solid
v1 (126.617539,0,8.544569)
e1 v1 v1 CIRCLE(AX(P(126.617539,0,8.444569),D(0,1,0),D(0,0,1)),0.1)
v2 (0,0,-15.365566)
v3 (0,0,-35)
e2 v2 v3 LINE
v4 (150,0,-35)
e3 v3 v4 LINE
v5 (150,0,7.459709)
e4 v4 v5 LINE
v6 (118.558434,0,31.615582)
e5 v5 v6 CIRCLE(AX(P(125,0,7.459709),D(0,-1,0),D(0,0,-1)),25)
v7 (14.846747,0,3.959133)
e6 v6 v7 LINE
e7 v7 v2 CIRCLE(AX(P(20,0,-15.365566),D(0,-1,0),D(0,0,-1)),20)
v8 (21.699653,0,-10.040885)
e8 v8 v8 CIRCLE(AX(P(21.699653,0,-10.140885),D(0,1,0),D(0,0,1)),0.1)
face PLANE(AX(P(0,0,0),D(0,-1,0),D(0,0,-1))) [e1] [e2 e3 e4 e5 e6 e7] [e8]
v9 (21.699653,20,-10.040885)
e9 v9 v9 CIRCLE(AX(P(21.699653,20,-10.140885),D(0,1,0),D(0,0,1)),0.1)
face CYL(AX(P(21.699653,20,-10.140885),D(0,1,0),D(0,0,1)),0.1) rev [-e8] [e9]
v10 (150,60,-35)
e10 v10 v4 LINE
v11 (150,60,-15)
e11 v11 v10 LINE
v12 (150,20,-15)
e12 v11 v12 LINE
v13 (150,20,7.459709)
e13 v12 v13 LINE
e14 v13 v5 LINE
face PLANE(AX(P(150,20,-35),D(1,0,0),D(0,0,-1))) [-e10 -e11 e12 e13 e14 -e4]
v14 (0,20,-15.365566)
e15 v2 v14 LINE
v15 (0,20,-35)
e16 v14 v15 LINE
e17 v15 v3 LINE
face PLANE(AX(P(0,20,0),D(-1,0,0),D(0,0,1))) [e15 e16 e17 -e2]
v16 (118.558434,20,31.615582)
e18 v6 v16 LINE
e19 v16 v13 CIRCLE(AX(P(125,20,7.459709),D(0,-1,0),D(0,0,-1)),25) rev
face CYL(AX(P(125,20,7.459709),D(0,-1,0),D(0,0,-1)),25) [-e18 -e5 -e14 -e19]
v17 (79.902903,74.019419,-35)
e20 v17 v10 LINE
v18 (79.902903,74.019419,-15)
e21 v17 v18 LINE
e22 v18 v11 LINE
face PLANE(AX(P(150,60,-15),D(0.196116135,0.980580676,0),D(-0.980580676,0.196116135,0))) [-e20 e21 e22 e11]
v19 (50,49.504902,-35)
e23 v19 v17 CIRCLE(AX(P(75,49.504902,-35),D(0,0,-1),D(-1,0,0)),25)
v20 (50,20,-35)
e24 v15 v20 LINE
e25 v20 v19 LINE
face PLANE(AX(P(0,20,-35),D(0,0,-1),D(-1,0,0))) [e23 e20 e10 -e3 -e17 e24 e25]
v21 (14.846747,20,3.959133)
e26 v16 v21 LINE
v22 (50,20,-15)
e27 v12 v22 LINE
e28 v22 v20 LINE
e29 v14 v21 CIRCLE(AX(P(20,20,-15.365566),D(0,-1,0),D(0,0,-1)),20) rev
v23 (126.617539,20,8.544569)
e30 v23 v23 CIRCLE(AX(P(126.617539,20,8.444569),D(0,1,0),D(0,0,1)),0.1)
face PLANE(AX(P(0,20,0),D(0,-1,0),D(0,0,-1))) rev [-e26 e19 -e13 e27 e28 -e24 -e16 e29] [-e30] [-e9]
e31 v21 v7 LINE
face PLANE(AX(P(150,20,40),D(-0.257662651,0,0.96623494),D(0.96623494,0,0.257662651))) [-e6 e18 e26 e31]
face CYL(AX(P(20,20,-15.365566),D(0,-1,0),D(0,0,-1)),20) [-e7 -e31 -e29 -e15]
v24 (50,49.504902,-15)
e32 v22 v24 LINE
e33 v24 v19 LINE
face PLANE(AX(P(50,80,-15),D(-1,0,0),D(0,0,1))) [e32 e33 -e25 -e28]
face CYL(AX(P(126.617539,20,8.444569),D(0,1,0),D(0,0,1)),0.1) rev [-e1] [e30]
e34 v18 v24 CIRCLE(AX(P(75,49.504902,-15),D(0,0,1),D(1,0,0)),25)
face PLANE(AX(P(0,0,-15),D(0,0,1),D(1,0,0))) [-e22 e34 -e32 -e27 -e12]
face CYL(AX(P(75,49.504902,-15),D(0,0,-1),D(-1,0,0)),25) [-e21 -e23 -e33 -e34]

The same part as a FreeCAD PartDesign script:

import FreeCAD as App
import Part
import Sketcher


def edges_at(feature, points):
    """Names of the edges that pass closest to the given points."""
    edges = feature.Shape.Edges
    near = lambda p: min(range(len(edges)), key=lambda i: edges[i].distToShape(Part.Vertex(*p))[0])
    return sorted({f"Edge{near(p) + 1}" for p in points})


def add_polygon(sketch, points):
    """Adds a closed chain of lines whose ends are joined by coincident constraints."""
    first, n = sketch.GeometryCount, len(points)
    for a, b in zip(points, points[1:] + points[:1]):
        sketch.addGeometry(Part.LineSegment(App.Vector(*a, 0), App.Vector(*b, 0)), False)
    for i in range(n):
        sketch.addConstraint(Sketcher.Constraint("Coincident", first + i, 2, first + (i + 1) % n, 1))

doc = App.newDocument("Part")
params = doc.addObject("Spreadsheet::Sheet", "Params")
for row, (alias, value) in enumerate([
    ("sketch1_width", "150 mm"),
    ("sketch1_height", "35 mm"),
    ("sketch1_height2", "75 mm"),
    ("pad1_length", "20 mm"),
    ("sketch2_width", "100 mm"),
    ("sketch2_height", "60 mm"),
    ("sketch2_height2", "80 mm"),
    ("pad2_length", "20 mm"),
    ("fillet_radius", "20 mm"),
    ("fillet2_radius", "25 mm"),
    ("sketch3_diameter", "0.2 mm"),
    ("hole_diameter", "0.2 mm"),
], start=1):
    params.set(f"A{row}", alias)
    params.set(f"B{row}", "=" + value)
    params.setAlias(f"B{row}", alias)

body = doc.addObject("PartDesign::Body", "Body")

sketch1 = doc.addObject("Sketcher::SketchObject", "Sketch")
body.addObject(sketch1)
sketch1.AttachmentSupport = (doc.XZ_Plane, [""])
sketch1.MapMode = "FlatFace"
add_polygon(sketch1, [(0, -35), (0, 0), (150, 40), (150, -35)])
sketch1.addConstraint(Sketcher.Constraint("Vertical", 0))
sketch1.addConstraint(Sketcher.Constraint("Vertical", 2))
sketch1.addConstraint(Sketcher.Constraint("Horizontal", 3))
sketch1.addConstraint(Sketcher.Constraint("Coincident", 0, 2, -1, 1))
sketch1.addConstraint(Sketcher.Constraint("DistanceX", 3, 2, 3, 1, 150.0))
sketch1.addConstraint(Sketcher.Constraint("DistanceY", 0, 1, 0, 2, 35.0))
sketch1.addConstraint(Sketcher.Constraint("DistanceY", 2, 2, 2, 1, 75.0))
sketch1.setExpression("Constraints[8]", "Params.sketch1_width")
sketch1.setExpression("Constraints[9]", "Params.sketch1_height")
sketch1.setExpression("Constraints[10]", "Params.sketch1_height2")
pad1 = doc.addObject("PartDesign::Pad", "Pad")
body.addObject(pad1)
pad1.Profile = sketch1
pad1.setExpression("Length", "Params.pad1_length")
pad1.Reversed = True

sketch2 = doc.addObject("Sketcher::SketchObject", "Sketch001")
body.addObject(sketch2)
sketch2.AttachmentSupport = (doc.XY_Plane, [""])
sketch2.MapMode = "FlatFace"
sketch2.AttachmentOffset = App.Placement(App.Vector(0, 0, -35), App.Rotation())
add_polygon(sketch2, [(150, 60), (150, 0), (50, 0), (50, 80)])
sketch2.addConstraint(Sketcher.Constraint("Vertical", 0))
sketch2.addConstraint(Sketcher.Constraint("Horizontal", 1))
sketch2.addConstraint(Sketcher.Constraint("Vertical", 2))
sketch2.addConstraint(Sketcher.Constraint("PointOnObject", 0, 2, -1))
sketch2.addConstraint(Sketcher.Constraint("DistanceX", 1, 2, 1, 1, 100.0))
sketch2.addConstraint(Sketcher.Constraint("DistanceY", 0, 2, 0, 1, 60.0))
sketch2.addConstraint(Sketcher.Constraint("DistanceY", 2, 1, 2, 2, 80.0))
sketch2.addConstraint(Sketcher.Constraint("DistanceX", -1, 1, 0, 2, 150.0))
sketch2.setExpression("Constraints[8]", "Params.sketch2_width")
sketch2.setExpression("Constraints[9]", "Params.sketch2_height")
sketch2.setExpression("Constraints[10]", "Params.sketch2_height2")
pad2 = doc.addObject("PartDesign::Pad", "Pad001")
body.addObject(pad2)
pad2.Profile = sketch2
pad2.setExpression("Length", "Params.pad2_length")
doc.recompute()

fillet = doc.addObject("PartDesign::Fillet", "Fillet")
body.addObject(fillet)
fillet.Base = (pad2, edges_at(pad2, [(0, 10, 0)]))
fillet.setExpression("Radius", "Params.fillet_radius")
doc.recompute()

fillet2 = doc.addObject("PartDesign::Fillet", "Fillet001")
body.addObject(fillet2)
fillet2.Base = (fillet, edges_at(fillet, [(50, 80, -25), (150, 10, 40)]))
fillet2.setExpression("Radius", "Params.fillet2_radius")

sketch3 = doc.addObject("Sketcher::SketchObject", "Sketch002")
body.addObject(sketch3)
sketch3.AttachmentSupport = (doc.XZ_Plane, [""])
sketch3.MapMode = "FlatFace"
sketch3.AttachmentOffset = App.Placement(App.Vector(0, 0, -20), App.Rotation())
sketch3.addGeometry(Part.Circle(App.Vector(21.699653, -10.140885, 0), App.Vector(0, 0, 1), 0.1), False)
sketch3.addGeometry(Part.Circle(App.Vector(126.617539, 8.444569, 0), App.Vector(0, 0, 1), 0.1), False)
sketch3.addConstraint(Sketcher.Constraint("Equal", 0, 1))
sketch3.addConstraint(Sketcher.Constraint("Diameter", 0, 0.2))
sketch3.addConstraint(Sketcher.Constraint("DistanceX", -1, 1, 1, 3, 126.617539))
sketch3.addConstraint(Sketcher.Constraint("DistanceY", -1, 1, 1, 3, 8.444569))
sketch3.addConstraint(Sketcher.Constraint("DistanceX", -1, 1, 0, 3, 21.699653))
sketch3.addConstraint(Sketcher.Constraint("DistanceY", 0, 3, -1, 1, 10.140885))
sketch3.setExpression("Constraints[1]", "Params.sketch3_diameter")
doc.recompute()
hole = doc.addObject("PartDesign::Hole", "Hole")
body.addObject(hole)
hole.Profile = sketch3
hole.ThreadType = "None"
hole.setExpression("Diameter", "Params.hole_diameter")
hole.DepthType = "ThroughAll"
hole.Reversed = True

doc.recompute()
